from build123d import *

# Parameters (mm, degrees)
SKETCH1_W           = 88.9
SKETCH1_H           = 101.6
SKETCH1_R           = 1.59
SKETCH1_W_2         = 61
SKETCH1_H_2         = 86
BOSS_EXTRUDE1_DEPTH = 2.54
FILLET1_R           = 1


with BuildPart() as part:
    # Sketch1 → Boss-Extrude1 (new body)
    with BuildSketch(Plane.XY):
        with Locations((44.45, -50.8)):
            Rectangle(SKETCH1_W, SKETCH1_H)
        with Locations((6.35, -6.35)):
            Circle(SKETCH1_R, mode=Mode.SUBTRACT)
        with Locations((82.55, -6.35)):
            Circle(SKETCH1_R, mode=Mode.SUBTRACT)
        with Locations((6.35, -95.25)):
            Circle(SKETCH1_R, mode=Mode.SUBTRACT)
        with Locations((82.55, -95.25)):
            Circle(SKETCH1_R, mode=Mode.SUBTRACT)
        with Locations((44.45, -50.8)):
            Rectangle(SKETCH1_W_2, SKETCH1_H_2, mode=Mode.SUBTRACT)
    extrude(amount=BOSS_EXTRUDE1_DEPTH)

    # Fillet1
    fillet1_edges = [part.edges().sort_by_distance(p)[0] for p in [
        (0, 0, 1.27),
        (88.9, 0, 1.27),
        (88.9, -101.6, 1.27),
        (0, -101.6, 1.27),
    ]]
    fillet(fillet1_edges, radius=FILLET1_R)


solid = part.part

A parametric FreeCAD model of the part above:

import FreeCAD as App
import Part
import Sketcher
Q = App.Units.Quantity


def edges_at(feature, points):
    """Names of the edges that pass closest to the given points."""
    edges = feature.Shape.Edges
    near = lambda p: min(range(len(edges)), key=lambda i: edges[i].distToShape(Part.Vertex(*p))[0])
    return sorted({f"Edge{near(p) + 1}" for p in points})

doc = App.newDocument("Part")
params = doc.addObject("Spreadsheet::Sheet", "Params")
for row, (alias, value) in enumerate([
    ("sketch1_diameter", "3.18 mm"),
    ("sketch1_width", "61 mm"),
    ("sketch1_height", "86 mm"),
    ("sketch1_width2", "88.9 mm"),
    ("sketch1_height2", "101.6 mm"),
    ("pad1_length", "2.54 mm"),
    ("fillet_radius", "1 mm"),
], start=1):
    params.set(f"A{row}", alias)
    params.set(f"B{row}", "=" + value)
    params.setAlias(f"B{row}", alias)

body = doc.addObject("PartDesign::Body", "Body")

sketch1 = body.newObject("Sketcher::SketchObject", "Sketch")
sketch1.AttachmentSupport = (doc.getObject("XY_Plane"), [""])
sketch1.MapMode = "FlatFace"
sketch1.addGeometry([
    Part.LineSegment(App.Vector(0, 0, 0), App.Vector(0, -101.6, 0)),
    Part.LineSegment(App.Vector(0, -101.6, 0), App.Vector(88.9, -101.6, 0)),
    Part.LineSegment(App.Vector(88.9, -101.6, 0), App.Vector(88.9, 0, 0)),
    Part.LineSegment(App.Vector(88.9, 0, 0), App.Vector(0, 0, 0)),
    Part.Circle(App.Vector(6.35, -95.25, 0), App.Vector(0, 0, 1), 1.59),
    Part.Circle(App.Vector(82.55, -95.25, 0), App.Vector(0, 0, 1), 1.59),
    Part.Circle(App.Vector(6.35, -6.35, 0), App.Vector(0, 0, 1), 1.59),
    Part.LineSegment(App.Vector(74.95, -93.8, 0), App.Vector(13.95, -93.8, 0)),
    Part.LineSegment(App.Vector(13.95, -93.8, 0), App.Vector(13.95, -7.8, 0)),
    Part.LineSegment(App.Vector(13.95, -7.8, 0), App.Vector(74.95, -7.8, 0)),
    Part.LineSegment(App.Vector(74.95, -7.8, 0), App.Vector(74.95, -93.8, 0)),
    Part.Circle(App.Vector(82.55, -6.35, 0), App.Vector(0, 0, 1), 1.59),
], False)
sketch1.addConstraint([
    Sketcher.Constraint("Coincident", 0, 2, 1, 1),
    Sketcher.Constraint("Coincident", 1, 2, 2, 1),
    Sketcher.Constraint("Coincident", 2, 2, 3, 1),
    Sketcher.Constraint("Coincident", 3, 2, 0, 1),
    Sketcher.Constraint("Coincident", 7, 2, 8, 1),
    Sketcher.Constraint("Coincident", 8, 2, 9, 1),
    Sketcher.Constraint("Coincident", 9, 2, 10, 1),
    Sketcher.Constraint("Coincident", 10, 2, 7, 1),
    Sketcher.Constraint("Vertical", 0),
    Sketcher.Constraint("Horizontal", 1),
    Sketcher.Constraint("Vertical", 2),
    Sketcher.Constraint("Horizontal", 3),
    Sketcher.Constraint("Horizontal", 7),
    Sketcher.Constraint("Vertical", 8),
    Sketcher.Constraint("Horizontal", 9),
    Sketcher.Constraint("Vertical", 10),
    Sketcher.Constraint("Coincident", 3, 2, -1, 1),
    Sketcher.Constraint("Equal", 4, 5),
    Sketcher.Constraint("Equal", 5, 6),
    Sketcher.Constraint("Equal", 6, 11),
    Sketcher.Constraint("Horizontal", 4, 3, 5, 3),
    Sketcher.Constraint("Horizontal", 6, 3, 11, 3),
    Sketcher.Constraint("Vertical", 4, 3, 6, 3),
    Sketcher.Constraint("Vertical", 5, 3, 11, 3),
    Sketcher.Constraint("Diameter", 4, Q("3.18 mm")),
    Sketcher.Constraint("DistanceX", 7, 2, 7, 1, Q("61 mm")),
    Sketcher.Constraint("DistanceY", 8, 1, 8, 2, Q("86 mm")),
    Sketcher.Constraint("DistanceX", 1, 1, 1, 2, Q("88.9 mm")),
    Sketcher.Constraint("DistanceY", 0, 2, 0, 1, Q("101.6 mm")),
    Sketcher.Constraint("DistanceY", 7, 2, -1, 1, Q("93.8 mm")),
    Sketcher.Constraint("DistanceX", 4, 3, 5, 3, Q("76.2 mm")),
    Sketcher.Constraint("DistanceY", 4, 3, 6, 3, Q("88.9 mm")),
    Sketcher.Constraint("DistanceX", 4, 3, 7, 2, Q("7.6 mm")),
    Sketcher.Constraint("DistanceX", -1, 1, 4, 3, Q("6.35 mm")),
    Sketcher.Constraint("DistanceY", 4, 3, -1, 1, Q("95.25 mm")),
])
sketch1.setExpression("Constraints[24]", "Params.sketch1_diameter")
sketch1.setExpression("Constraints[25]", "Params.sketch1_width")
sketch1.setExpression("Constraints[26]", "Params.sketch1_height")
sketch1.setExpression("Constraints[27]", "Params.sketch1_width2")
sketch1.setExpression("Constraints[28]", "Params.sketch1_height2")
pad1 = body.newObject("PartDesign::Pad", "Pad")
pad1.Profile = sketch1
pad1.setExpression("Length", "Params.pad1_length")
doc.recompute()

fillet = body.newObject("PartDesign::Fillet", "Fillet")
fillet.Base = (pad1, edges_at(pad1, [
    (0, 0, 1.27),
    (88.9, 0, 1.27),
    (88.9, -101.6, 1.27),
    (0, -101.6, 1.27),
]))
fillet.setExpression("Radius", "Params.fillet_radius")

doc.recompute()
